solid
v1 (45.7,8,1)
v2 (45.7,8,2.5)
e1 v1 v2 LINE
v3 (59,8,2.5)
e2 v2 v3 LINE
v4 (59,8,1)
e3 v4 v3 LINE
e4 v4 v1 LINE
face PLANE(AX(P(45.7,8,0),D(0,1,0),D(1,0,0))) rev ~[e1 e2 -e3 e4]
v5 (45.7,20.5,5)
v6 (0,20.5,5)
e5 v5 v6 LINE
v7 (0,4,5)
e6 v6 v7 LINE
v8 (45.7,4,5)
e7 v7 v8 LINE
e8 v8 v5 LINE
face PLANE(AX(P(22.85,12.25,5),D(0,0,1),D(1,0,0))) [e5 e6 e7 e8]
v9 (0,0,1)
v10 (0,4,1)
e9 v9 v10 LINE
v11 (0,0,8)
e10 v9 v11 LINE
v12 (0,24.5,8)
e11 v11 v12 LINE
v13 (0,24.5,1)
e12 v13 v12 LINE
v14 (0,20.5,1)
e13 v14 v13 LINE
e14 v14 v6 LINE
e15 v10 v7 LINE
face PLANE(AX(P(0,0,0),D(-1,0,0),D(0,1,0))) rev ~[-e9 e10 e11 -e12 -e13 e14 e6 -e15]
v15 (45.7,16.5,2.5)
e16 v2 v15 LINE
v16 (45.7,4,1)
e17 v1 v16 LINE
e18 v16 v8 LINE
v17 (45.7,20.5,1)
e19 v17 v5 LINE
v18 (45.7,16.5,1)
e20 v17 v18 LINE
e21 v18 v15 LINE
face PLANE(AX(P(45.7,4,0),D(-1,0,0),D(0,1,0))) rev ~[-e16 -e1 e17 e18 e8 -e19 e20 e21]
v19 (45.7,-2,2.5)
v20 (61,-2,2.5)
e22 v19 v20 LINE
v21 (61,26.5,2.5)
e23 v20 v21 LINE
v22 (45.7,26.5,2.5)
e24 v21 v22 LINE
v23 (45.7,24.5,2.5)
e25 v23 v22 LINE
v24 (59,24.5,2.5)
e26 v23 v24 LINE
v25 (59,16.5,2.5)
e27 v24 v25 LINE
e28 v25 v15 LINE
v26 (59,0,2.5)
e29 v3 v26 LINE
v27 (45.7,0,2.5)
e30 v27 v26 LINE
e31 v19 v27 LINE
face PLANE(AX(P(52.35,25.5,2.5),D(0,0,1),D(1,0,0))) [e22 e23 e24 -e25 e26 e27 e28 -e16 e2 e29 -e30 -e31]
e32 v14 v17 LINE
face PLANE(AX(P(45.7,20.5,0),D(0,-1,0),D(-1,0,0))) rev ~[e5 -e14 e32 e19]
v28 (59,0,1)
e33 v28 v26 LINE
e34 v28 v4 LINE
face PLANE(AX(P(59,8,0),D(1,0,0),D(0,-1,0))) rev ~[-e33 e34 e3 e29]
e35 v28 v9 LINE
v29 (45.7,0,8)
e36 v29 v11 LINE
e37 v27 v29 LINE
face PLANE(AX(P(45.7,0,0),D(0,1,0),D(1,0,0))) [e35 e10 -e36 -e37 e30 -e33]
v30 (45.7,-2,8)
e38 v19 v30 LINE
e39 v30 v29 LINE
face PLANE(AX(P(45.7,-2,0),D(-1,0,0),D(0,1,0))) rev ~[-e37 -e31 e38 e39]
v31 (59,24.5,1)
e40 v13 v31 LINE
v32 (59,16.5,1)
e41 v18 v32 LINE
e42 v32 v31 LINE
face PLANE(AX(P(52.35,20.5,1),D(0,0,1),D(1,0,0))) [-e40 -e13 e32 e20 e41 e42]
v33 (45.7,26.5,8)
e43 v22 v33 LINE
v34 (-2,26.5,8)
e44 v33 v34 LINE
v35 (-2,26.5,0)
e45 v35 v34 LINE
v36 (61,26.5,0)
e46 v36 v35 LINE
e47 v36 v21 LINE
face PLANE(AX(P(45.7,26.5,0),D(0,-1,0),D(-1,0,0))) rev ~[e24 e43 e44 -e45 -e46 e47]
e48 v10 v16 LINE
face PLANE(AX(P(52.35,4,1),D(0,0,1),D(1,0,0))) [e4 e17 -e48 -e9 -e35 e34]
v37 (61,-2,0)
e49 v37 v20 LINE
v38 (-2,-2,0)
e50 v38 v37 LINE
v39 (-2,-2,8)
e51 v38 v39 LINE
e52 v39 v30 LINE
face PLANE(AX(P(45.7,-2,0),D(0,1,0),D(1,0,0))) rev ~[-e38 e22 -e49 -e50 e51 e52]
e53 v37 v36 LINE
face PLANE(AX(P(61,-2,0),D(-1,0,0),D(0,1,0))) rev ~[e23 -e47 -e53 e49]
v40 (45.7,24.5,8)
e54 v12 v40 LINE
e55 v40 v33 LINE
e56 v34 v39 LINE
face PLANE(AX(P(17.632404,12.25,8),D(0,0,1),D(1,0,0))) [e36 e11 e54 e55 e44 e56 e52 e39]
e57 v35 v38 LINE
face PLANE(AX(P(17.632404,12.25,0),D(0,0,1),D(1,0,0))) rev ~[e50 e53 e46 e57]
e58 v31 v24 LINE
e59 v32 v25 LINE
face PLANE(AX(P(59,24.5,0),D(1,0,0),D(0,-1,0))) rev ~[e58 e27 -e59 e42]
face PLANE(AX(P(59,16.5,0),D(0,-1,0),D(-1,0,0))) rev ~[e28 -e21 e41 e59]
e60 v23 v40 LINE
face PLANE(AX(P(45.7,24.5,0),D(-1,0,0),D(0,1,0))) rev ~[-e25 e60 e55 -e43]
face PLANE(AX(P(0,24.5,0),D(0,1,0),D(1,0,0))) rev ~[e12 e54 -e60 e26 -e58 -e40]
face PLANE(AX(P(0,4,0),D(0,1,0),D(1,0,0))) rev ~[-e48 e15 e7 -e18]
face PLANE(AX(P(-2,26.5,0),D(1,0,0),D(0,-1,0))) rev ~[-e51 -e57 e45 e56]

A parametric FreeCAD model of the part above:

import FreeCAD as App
import Part
import Sketcher
from FreeCAD import Vector

doc = App.newDocument("Part")
body = doc.addObject("PartDesign::Body", "Body")

sketch1 = body.newObject("Sketcher::SketchObject", "Sketch")
sketch1.AttachmentSupport = (doc.getObject("XY_Plane"), [""])
sketch1.MapMode = "FlatFace"
sketch1.addGeometry(Part.LineSegment(Vector(59, 16.5, 0), Vector(59, 24.5, 0)), False)
sketch1.addGeometry(Part.LineSegment(Vector(59, 24.5, 0), Vector(0, 24.5, 0)), False)
sketch1.addGeometry(Part.LineSegment(Vector(0, 24.5, 0), Vector(0, 20.5, 0)), False)
sketch1.addGeometry(Part.LineSegment(Vector(0, 20.5, 0), Vector(45.7, 20.5, 0)), False)
sketch1.addGeometry(Part.LineSegment(Vector(45.7, 20.5, 0), Vector(45.7, 16.5, 0)), False)
sketch1.addGeometry(Part.LineSegment(Vector(45.7, 16.5, 0), Vector(59, 16.5, 0)), False)
sketch1.addConstraint(Sketcher.Constraint("Coincident", 0, 2, 1, 1))
sketch1.addConstraint(Sketcher.Constraint("Coincident", 1, 2, 2, 1))
sketch1.addConstraint(Sketcher.Constraint("Coincident", 2, 2, 3, 1))
sketch1.addConstraint(Sketcher.Constraint("Coincident", 3, 2, 4, 1))
sketch1.addConstraint(Sketcher.Constraint("Coincident", 4, 2, 5, 1))
sketch1.addConstraint(Sketcher.Constraint("Coincident", 5, 2, 0, 1))
sketch1.addConstraint(Sketcher.Constraint("Vertical", 0))
sketch1.addConstraint(Sketcher.Constraint("Horizontal", 1))
sketch1.addConstraint(Sketcher.Constraint("Vertical", 2))
sketch1.addConstraint(Sketcher.Constraint("Horizontal", 3))
sketch1.addConstraint(Sketcher.Constraint("Vertical", 4))
sketch1.addConstraint(Sketcher.Constraint("Horizontal", 5))
sketch1.addConstraint(Sketcher.Constraint("PointOnObject", 1, 2, -2))
sketch1.addConstraint(Sketcher.Constraint("Equal", 2, 4))
sketch1.addConstraint(Sketcher.Constraint("DistanceX", 1, 2, 1, 1, 59.0))
sketch1.addConstraint(Sketcher.Constraint("DistanceY", 0, 1, 0, 2, 8.0))
sketch1.addConstraint(Sketcher.Constraint("DistanceX", 3, 1, 3, 2, 45.7))
sketch1.addConstraint(Sketcher.Constraint("DistanceY", -1, 1, 0, 2, 24.5))
pad1 = body.newObject("PartDesign::Pad", "Pad")
pad1.Profile = sketch1
pad1.Length = 1
body2 = doc.addObject("PartDesign::Body", "Body001")

sketch2 = body2.newObject("Sketcher::SketchObject", "Sketch001")
sketch2.AttachmentSupport = (doc.getObject("XY_Plane001"), [""])
sketch2.MapMode = "FlatFace"
sketch2.addGeometry(Part.LineSegment(Vector(59, 0, 0), Vector(59, 8, 0)), False)
sketch2.addGeometry(Part.LineSegment(Vector(59, 8, 0), Vector(45.7, 8, 0)), False)
sketch2.addGeometry(Part.LineSegment(Vector(45.7, 8, 0), Vector(45.7, 4, 0)), False)
sketch2.addGeometry(Part.LineSegment(Vector(45.7, 4, 0), Vector(0, 4, 0)), False)
sketch2.addGeometry(Part.LineSegment(Vector(0, 4, 0), Vector(0, 0, 0)), False)
sketch2.addGeometry(Part.LineSegment(Vector(0, 0, 0), Vector(59, 0, 0)), False)
sketch2.addConstraint(Sketcher.Constraint("Coincident", 0, 2, 1, 1))
sketch2.addConstraint(Sketcher.Constraint("Coincident", 1, 2, 2, 1))
sketch2.addConstraint(Sketcher.Constraint("Coincident", 2, 2, 3, 1))
sketch2.addConstraint(Sketcher.Constraint("Coincident", 3, 2, 4, 1))
sketch2.addConstraint(Sketcher.Constraint("Coincident", 4, 2, 5, 1))
sketch2.addConstraint(Sketcher.Constraint("Coincident", 5, 2, 0, 1))
sketch2.addConstraint(Sketcher.Constraint("Vertical", 0))
sketch2.addConstraint(Sketcher.Constraint("Horizontal", 1))
sketch2.addConstraint(Sketcher.Constraint("Vertical", 2))
sketch2.addConstraint(Sketcher.Constraint("Horizontal", 3))
sketch2.addConstraint(Sketcher.Constraint("Vertical", 4))
sketch2.addConstraint(Sketcher.Constraint("Horizontal", 5))
sketch2.addConstraint(Sketcher.Constraint("Coincident", 4, 2, -1, 1))
sketch2.addConstraint(Sketcher.Constraint("Equal", 2, 4))
sketch2.addConstraint(Sketcher.Constraint("DistanceX", 5, 1, 5, 2, 59.0))
sketch2.addConstraint(Sketcher.Constraint("DistanceY", 0, 1, 0, 2, 8.0))
sketch2.addConstraint(Sketcher.Constraint("DistanceX", 1, 2, 1, 1, 13.3))
pad2 = body2.newObject("PartDesign::Pad", "Pad001")
pad2.Profile = sketch2
pad2.Length = 1
body.AllowCompound = True
doc.recompute()

boolean = body.newObject("PartDesign::Boolean", "Boolean")
boolean.Type = "Fuse"
boolean.addObjects([body2])

sketch3 = body.newObject("Sketcher::SketchObject", "Sketch002")
sketch3.AttachmentSupport = (doc.getObject("XY_Plane"), [""])
sketch3.MapMode = "FlatFace"
sketch3.addGeometry(Part.LineSegment(Vector(45.7, 26.5, 0), Vector(45.7, 24.5, 0)), False)
sketch3.addGeometry(Part.LineSegment(Vector(45.7, 24.5, 0), Vector(59, 24.5, 0)), False)
sketch3.addGeometry(Part.LineSegment(Vector(59, 24.5, 0), Vector(59, 16.5, 0)), False)
sketch3.addGeometry(Part.LineSegment(Vector(59, 16.5, 0), Vector(45.7, 16.5, 0)), False)
sketch3.addGeometry(Part.LineSegment(Vector(45.7, 16.5, 0), Vector(45.7, 8, 0)), False)
sketch3.addGeometry(Part.LineSegment(Vector(45.7, 8, 0), Vector(59, 8, 0)), False)
sketch3.addGeometry(Part.LineSegment(Vector(59, 8, 0), Vector(59, 0, 0)), False)
sketch3.addGeometry(Part.LineSegment(Vector(59, 0, 0), Vector(45.7, 0, 0)), False)
sketch3.addGeometry(Part.LineSegment(Vector(45.7, 0, 0), Vector(45.7, -2, 0)), False)
sketch3.addGeometry(Part.LineSegment(Vector(45.7, -2, 0), Vector(61, -2, 0)), False)
sketch3.addGeometry(Part.LineSegment(Vector(61, -2, 0), Vector(61, 26.5, 0)), False)
sketch3.addGeometry(Part.LineSegment(Vector(61, 26.5, 0), Vector(45.7, 26.5, 0)), False)
sketch3.addConstraint(Sketcher.Constraint("Coincident", 0, 2, 1, 1))
sketch3.addConstraint(Sketcher.Constraint("Coincident", 1, 2, 2, 1))
sketch3.addConstraint(Sketcher.Constraint("Coincident", 2, 2, 3, 1))
sketch3.addConstraint(Sketcher.Constraint("Coincident", 3, 2, 4, 1))
sketch3.addConstraint(Sketcher.Constraint("Coincident", 4, 2, 5, 1))
sketch3.addConstraint(Sketcher.Constraint("Coincident", 5, 2, 6, 1))
sketch3.addConstraint(Sketcher.Constraint("Coincident", 6, 2, 7, 1))
sketch3.addConstraint(Sketcher.Constraint("Coincident", 7, 2, 8, 1))
sketch3.addConstraint(Sketcher.Constraint("Coincident", 8, 2, 9, 1))
sketch3.addConstraint(Sketcher.Constraint("Coincident", 9, 2, 10, 1))
sketch3.addConstraint(Sketcher.Constraint("Coincident", 10, 2, 11, 1))
sketch3.addConstraint(Sketcher.Constraint("Coincident", 11, 2, 0, 1))
sketch3.addConstraint(Sketcher.Constraint("Vertical", 0))
sketch3.addConstraint(Sketcher.Constraint("Horizontal", 1))
sketch3.addConstraint(Sketcher.Constraint("Vertical", 2))
sketch3.addConstraint(Sketcher.Constraint("Horizontal", 3))
sketch3.addConstraint(Sketcher.Constraint("Vertical", 4))
sketch3.addConstraint(Sketcher.Constraint("Horizontal", 5))
sketch3.addConstraint(Sketcher.Constraint("Vertical", 6))
sketch3.addConstraint(Sketcher.Constraint("Horizontal", 7))
sketch3.addConstraint(Sketcher.Constraint("Vertical", 8))
sketch3.addConstraint(Sketcher.Constraint("Horizontal", 9))
sketch3.addConstraint(Sketcher.Constraint("Vertical", 10))
sketch3.addConstraint(Sketcher.Constraint("Horizontal", 11))
sketch3.addConstraint(Sketcher.Constraint("PointOnObject", 6, 2, -1))
sketch3.addConstraint(Sketcher.Constraint("Vertical", 0, 2, 3, 2))
sketch3.addConstraint(Sketcher.Constraint("Vertical", 2, 2, 5, 2))
sketch3.addConstraint(Sketcher.Constraint("Vertical", 4, 2, 7, 2))
sketch3.addConstraint(Sketcher.Constraint("Equal", 2, 6))
sketch3.addConstraint(Sketcher.Constraint("Equal", 0, 8))
sketch3.addConstraint(Sketcher.Constraint("DistanceY", 0, 2, 0, 1, 2.0))
sketch3.addConstraint(Sketcher.Constraint("DistanceY", 2, 2, 2, 1, 8.0))
sketch3.addConstraint(Sketcher.Constraint("DistanceX", 1, 1, 1, 2, 13.3))
sketch3.addConstraint(Sketcher.Constraint("DistanceX", 9, 1, 9, 2, 15.3))
sketch3.addConstraint(Sketcher.Constraint("DistanceY", 4, 2, 4, 1, 8.5))
sketch3.addConstraint(Sketcher.Constraint("DistanceX", -1, 1, 1, 2, 59.0))
pad3 = body.newObject("PartDesign::Pad", "Pad002")
pad3.Profile = sketch3
pad3.Length = 2.5

sketch4 = body.newObject("Sketcher::SketchObject", "Sketch003")
sketch4.AttachmentSupport = (doc.getObject("XY_Plane"), [""])
sketch4.MapMode = "FlatFace"
sketch4.addGeometry(Part.LineSegment(Vector(46, 20, 0), Vector(0, 20, 0)), False)
sketch4.addGeometry(Part.LineSegment(Vector(0, 20, 0), Vector(0, 4, 0)), False)
sketch4.addGeometry(Part.LineSegment(Vector(0, 4, 0), Vector(46, 4, 0)), False)
sketch4.addGeometry(Part.LineSegment(Vector(46, 4, 0), Vector(46, 20, 0)), False)
sketch4.addConstraint(Sketcher.Constraint("Coincident", 0, 2, 1, 1))
sketch4.addConstraint(Sketcher.Constraint("Coincident", 1, 2, 2, 1))
sketch4.addConstraint(Sketcher.Constraint("Coincident", 2, 2, 3, 1))
sketch4.addConstraint(Sketcher.Constraint("Coincident", 3, 2, 0, 1))
sketch4.addConstraint(Sketcher.Constraint("Horizontal", 0))
sketch4.addConstraint(Sketcher.Constraint("Vertical", 1))
sketch4.addConstraint(Sketcher.Constraint("Horizontal", 2))
sketch4.addConstraint(Sketcher.Constraint("Vertical", 3))
sketch4.addConstraint(Sketcher.Constraint("PointOnObject", 0, 2, -2))
sketch4.addConstraint(Sketcher.Constraint("DistanceX", 0, 2, 0, 1, 45.7))
sketch4.addConstraint(Sketcher.Constraint("DistanceY", 1, 2, 1, 1, 16.5))
sketch4.addConstraint(Sketcher.Constraint("DistanceY", -1, 1, 1, 2, 4.0))
pad4 = body.newObject("PartDesign::Pad", "Pad003")
pad4.Profile = sketch4
pad4.Length = 5

sketch5 = body.newObject("Sketcher::SketchObject", "Sketch004")
sketch5.AttachmentSupport = (doc.getObject("XY_Plane"), [""])
sketch5.MapMode = "FlatFace"
sketch5.addGeometry(Part.LineSegment(Vector(45.7, 24.5, 0), Vector(45.7, 26.5, 0)), False)
sketch5.addGeometry(Part.LineSegment(Vector(45.7, 26.5, 0), Vector(-2, 26.5, 0)), False)
sketch5.addGeometry(Part.LineSegment(Vector(-2, 26.5, 0), Vector(-2, -2, 0)), False)
sketch5.addGeometry(Part.LineSegment(Vector(-2, -2, 0), Vector(45.7, -2, 0)), False)
sketch5.addGeometry(Part.LineSegment(Vector(45.7, -2, 0), Vector(45.7, 0, 0)), False)
sketch5.addGeometry(Part.LineSegment(Vector(45.7, 0, 0), Vector(0, 0, 0)), False)
sketch5.addGeometry(Part.LineSegment(Vector(0, 0, 0), Vector(0, 24.5, 0)), False)
sketch5.addGeometry(Part.LineSegment(Vector(0, 24.5, 0), Vector(45.7, 24.5, 0)), False)
sketch5.addConstraint(Sketcher.Constraint("Coincident", 0, 2, 1, 1))
sketch5.addConstraint(Sketcher.Constraint("Coincident", 1, 2, 2, 1))
sketch5.addConstraint(Sketcher.Constraint("Coincident", 2, 2, 3, 1))
sketch5.addConstraint(Sketcher.Constraint("Coincident", 3, 2, 4, 1))
sketch5.addConstraint(Sketcher.Constraint("Coincident", 4, 2, 5, 1))
sketch5.addConstraint(Sketcher.Constraint("Coincident", 5, 2, 6, 1))
sketch5.addConstraint(Sketcher.Constraint("Coincident", 6, 2, 7, 1))
sketch5.addConstraint(Sketcher.Constraint("Coincident", 7, 2, 0, 1))
sketch5.addConstraint(Sketcher.Constraint("Vertical", 0))
sketch5.addConstraint(Sketcher.Constraint("Horizontal", 1))
sketch5.addConstraint(Sketcher.Constraint("Vertical", 2))
sketch5.addConstraint(Sketcher.Constraint("Horizontal", 3))
sketch5.addConstraint(Sketcher.Constraint("Vertical", 4))
sketch5.addConstraint(Sketcher.Constraint("Horizontal", 5))
sketch5.addConstraint(Sketcher.Constraint("Vertical", 6))
sketch5.addConstraint(Sketcher.Constraint("Horizontal", 7))
sketch5.addConstraint(Sketcher.Constraint("Coincident", 5, 2, -1, 1))
sketch5.addConstraint(Sketcher.Constraint("Vertical", 0, 2, 3, 2))
sketch5.addConstraint(Sketcher.Constraint("Equal", 0, 4))
sketch5.addConstraint(Sketcher.Constraint("DistanceY", 0, 1, 0, 2, 2.0))
sketch5.addConstraint(Sketcher.Constraint("DistanceX", 1, 2, 1, 1, 47.7))
sketch5.addConstraint(Sketcher.Constraint("DistanceX", 5, 2, 5, 1, 45.7))
sketch5.addConstraint(Sketcher.Constraint("DistanceY", 2, 2, 2, 1, 28.5))
pad5 = body.newObject("PartDesign::Pad", "Pad004")
pad5.Profile = sketch5
pad5.Length = 8

doc.recompute()
